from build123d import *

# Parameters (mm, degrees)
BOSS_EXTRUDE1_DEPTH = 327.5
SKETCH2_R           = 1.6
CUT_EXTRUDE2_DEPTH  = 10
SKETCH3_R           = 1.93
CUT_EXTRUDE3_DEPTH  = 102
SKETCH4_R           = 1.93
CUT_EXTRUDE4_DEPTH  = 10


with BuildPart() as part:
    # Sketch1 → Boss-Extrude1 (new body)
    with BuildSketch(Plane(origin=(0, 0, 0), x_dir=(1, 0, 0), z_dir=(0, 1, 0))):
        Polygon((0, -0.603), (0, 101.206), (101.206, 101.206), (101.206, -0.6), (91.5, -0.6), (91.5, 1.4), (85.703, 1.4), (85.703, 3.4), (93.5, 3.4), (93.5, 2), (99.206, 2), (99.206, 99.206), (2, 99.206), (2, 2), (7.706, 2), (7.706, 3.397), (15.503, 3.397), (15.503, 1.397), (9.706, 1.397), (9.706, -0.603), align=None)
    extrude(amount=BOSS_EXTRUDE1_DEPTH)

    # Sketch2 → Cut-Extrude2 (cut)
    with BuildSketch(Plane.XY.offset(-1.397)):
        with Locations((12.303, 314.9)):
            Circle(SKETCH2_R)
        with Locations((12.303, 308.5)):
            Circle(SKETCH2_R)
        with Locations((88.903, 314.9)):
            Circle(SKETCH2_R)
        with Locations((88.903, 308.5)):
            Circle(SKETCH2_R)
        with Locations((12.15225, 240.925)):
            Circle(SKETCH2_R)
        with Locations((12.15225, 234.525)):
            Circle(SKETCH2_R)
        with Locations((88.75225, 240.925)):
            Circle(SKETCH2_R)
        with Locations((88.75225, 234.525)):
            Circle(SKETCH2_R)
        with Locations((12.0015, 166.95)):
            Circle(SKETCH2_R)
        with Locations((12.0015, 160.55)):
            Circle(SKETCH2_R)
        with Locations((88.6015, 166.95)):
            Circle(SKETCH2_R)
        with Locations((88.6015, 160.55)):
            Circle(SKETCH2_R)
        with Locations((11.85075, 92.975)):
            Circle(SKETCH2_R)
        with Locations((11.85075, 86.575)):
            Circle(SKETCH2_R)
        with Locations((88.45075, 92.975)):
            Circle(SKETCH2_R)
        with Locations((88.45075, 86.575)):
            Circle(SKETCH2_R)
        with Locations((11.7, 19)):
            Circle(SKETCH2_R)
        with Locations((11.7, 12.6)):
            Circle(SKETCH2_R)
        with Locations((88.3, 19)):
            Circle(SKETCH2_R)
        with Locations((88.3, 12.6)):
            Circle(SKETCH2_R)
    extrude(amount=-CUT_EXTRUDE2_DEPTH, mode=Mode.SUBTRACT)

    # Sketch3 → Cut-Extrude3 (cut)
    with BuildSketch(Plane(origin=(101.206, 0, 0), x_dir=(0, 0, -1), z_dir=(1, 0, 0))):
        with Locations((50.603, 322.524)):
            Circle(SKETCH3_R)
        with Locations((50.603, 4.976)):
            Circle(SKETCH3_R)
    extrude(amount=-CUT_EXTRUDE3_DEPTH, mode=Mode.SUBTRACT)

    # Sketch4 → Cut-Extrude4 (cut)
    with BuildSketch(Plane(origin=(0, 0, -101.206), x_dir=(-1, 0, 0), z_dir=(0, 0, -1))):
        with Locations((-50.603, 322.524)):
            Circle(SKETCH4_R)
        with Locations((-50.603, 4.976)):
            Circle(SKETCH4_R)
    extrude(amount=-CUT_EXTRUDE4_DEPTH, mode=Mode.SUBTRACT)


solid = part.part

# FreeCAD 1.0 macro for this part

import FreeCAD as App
import Part
import Sketcher

V = App.Vector
Q = App.Units.Quantity


def add_polygon(sketch, points):
    """Adds a closed chain of lines whose ends are joined by coincident constraints."""
    first, n = sketch.GeometryCount, len(points)
    for a, b in zip(points, points[1:] + points[:1]):
        sketch.addGeometry(Part.LineSegment(App.Vector(*a, 0), App.Vector(*b, 0)), False)
    for i in range(n):
        sketch.addConstraint(Sketcher.Constraint("Coincident", first + i, 2, first + (i + 1) % n, 1))

doc = App.newDocument("Part")
params = doc.addObject("Spreadsheet::Sheet", "Params")
for row, (alias, value) in enumerate([
    ("sketch1_height", "2 mm"),
    ("sketch1_height2", "1.4 mm"),
    ("pad1_length", "327.5 mm"),
    ("sketch2_diameter", "3.2 mm"),
    ("pocket1_length", "10 mm"),
    ("sketch3_diameter", "3.86 mm"),
    ("pocket2_length", "102 mm"),
    ("sketch4_diameter", "3.86 mm"),
    ("pocket3_length", "10 mm"),
], start=1):
    params.set(f"A{row}", alias)
    params.set(f"B{row}", "=" + value)
    params.setAlias(f"B{row}", alias)

body = doc.addObject("PartDesign::Body", "Body")

sketch1 = body.newObject("Sketcher::SketchObject", "Sketch")
sketch1.AttachmentSupport = (doc.getObject("XZ_Plane"), [""])
sketch1.MapMode = "FlatFace"
add_polygon(sketch1, [(0, -101.2), (0, 0.6), (9.7, 0.6), (9.7, -1.4), (15.5, -1.4), (15.5, -3.4), (7.7, -3.4), (7.7, -2), (2, -2), (2, -99.2), (99.2, -99.2), (99.2, -2), (93.5, -2), (93.5, -3.4), (85.7, -3.4), (85.7, -1.4), (91.5, -1.4), (91.5, 0.6), (101.2, 0.6), (101.2, -101.2)])
sketch1.addConstraint(Sketcher.Constraint("Vertical", 0))
sketch1.addConstraint(Sketcher.Constraint("Horizontal", 1))
sketch1.addConstraint(Sketcher.Constraint("Vertical", 2))
sketch1.addConstraint(Sketcher.Constraint("Horizontal", 3))
sketch1.addConstraint(Sketcher.Constraint("Vertical", 4))
sketch1.addConstraint(Sketcher.Constraint("Horizontal", 5))
sketch1.addConstraint(Sketcher.Constraint("Vertical", 6))
sketch1.addConstraint(Sketcher.Constraint("Horizontal", 7))
sketch1.addConstraint(Sketcher.Constraint("Vertical", 8))
sketch1.addConstraint(Sketcher.Constraint("Horizontal", 9))
sketch1.addConstraint(Sketcher.Constraint("Vertical", 10))
sketch1.addConstraint(Sketcher.Constraint("Horizontal", 11))
sketch1.addConstraint(Sketcher.Constraint("Vertical", 12))
sketch1.addConstraint(Sketcher.Constraint("Horizontal", 13))
sketch1.addConstraint(Sketcher.Constraint("Vertical", 14))
sketch1.addConstraint(Sketcher.Constraint("Horizontal", 15))
sketch1.addConstraint(Sketcher.Constraint("Vertical", 16))
sketch1.addConstraint(Sketcher.Constraint("Horizontal", 17))
sketch1.addConstraint(Sketcher.Constraint("Vertical", 18))
sketch1.addConstraint(Sketcher.Constraint("Horizontal", 19))
sketch1.addConstraint(Sketcher.Constraint("PointOnObject", 0, 2, -2))
sketch1.addConstraint(Sketcher.Constraint("Horizontal", 7, 2, 10, 2))
sketch1.addConstraint(Sketcher.Constraint("Equal", 7, 11))
sketch1.addConstraint(Sketcher.Constraint("Equal", 5, 13))
sketch1.addConstraint(Sketcher.Constraint("Equal", 3, 15))
sketch1.addConstraint(Sketcher.Constraint("Equal", 1, 17))
sketch1.addConstraint(Sketcher.Constraint("Equal", 2, 4))
sketch1.addConstraint(Sketcher.Constraint("Equal", 9, 8))
sketch1.addConstraint(Sketcher.Constraint("Equal", 4, 14))
sketch1.addConstraint(Sketcher.Constraint("Equal", 14, 16))
sketch1.addConstraint(Sketcher.Constraint("DistanceY", 2, 2, 2, 1, Q("2 mm")))
sketch1.addConstraint(Sketcher.Constraint("DistanceY", 12, 2, 12, 1, Q("1.4 mm")))
sketch1.addConstraint(Sketcher.Constraint("DistanceY", 6, 2, -1, 1, Q("2 mm")))
sketch1.addConstraint(Sketcher.Constraint("DistanceX", -1, 1, 7, 2, Q("2 mm")))
sketch1.addConstraint(Sketcher.Constraint("DistanceX", 5, 2, 2, 2, Q("2 mm")))
sketch1.addConstraint(Sketcher.Constraint("DistanceY", 18, 2, 9, 2, Q("2 mm")))
sketch1.addConstraint(Sketcher.Constraint("DistanceX", -1, 1, 11, 2, Q("93.5 mm")))
sketch1.addConstraint(Sketcher.Constraint("DistanceX", 4, 2, 13, 2, Q("70.2 mm")))
sketch1.addConstraint(Sketcher.Constraint("DistanceX", 1, 1, 1, 2, Q("9.706 mm")))
sketch1.addConstraint(Sketcher.Constraint("DistanceY", 0, 1, 0, 2, Q("101.809 mm")))
sketch1.setExpression("Constraints[50]", "Params.sketch1_height")
sketch1.setExpression("Constraints[51]", "Params.sketch1_height2")
pad1 = body.newObject("PartDesign::Pad", "Pad")
pad1.Profile = sketch1
pad1.setExpression("Length", "Params.pad1_length")
pad1.Reversed = True

sketch2 = body.newObject("Sketcher::SketchObject", "Sketch001")
sketch2.AttachmentSupport = (doc.getObject("XY_Plane"), [""])
sketch2.MapMode = "FlatFace"
sketch2.AttachmentOffset = App.Placement(V(0, 0, -1.397), App.Rotation())
sketch2.addGeometry(Part.Circle(V(12.3, 314.9, 0), V(0, 0, 1), 1.6), False)
sketch2.addGeometry(Part.Circle(V(12.3, 308.5, 0), V(0, 0, 1), 1.6), False)
sketch2.addGeometry(Part.Circle(V(88.9, 314.9, 0), V(0, 0, 1), 1.6), False)
sketch2.addGeometry(Part.Circle(V(88.9, 308.5, 0), V(0, 0, 1), 1.6), False)
sketch2.addGeometry(Part.Circle(V(12.2, 240.9, 0), V(0, 0, 1), 1.6), False)
sketch2.addGeometry(Part.Circle(V(12.2, 234.5, 0), V(0, 0, 1), 1.6), False)
sketch2.addGeometry(Part.Circle(V(88.8, 240.9, 0), V(0, 0, 1), 1.6), False)
sketch2.addGeometry(Part.Circle(V(88.8, 234.5, 0), V(0, 0, 1), 1.6), False)
sketch2.addGeometry(Part.Circle(V(12, 166.9, 0), V(0, 0, 1), 1.6), False)
sketch2.addGeometry(Part.Circle(V(12, 160.6, 0), V(0, 0, 1), 1.6), False)
sketch2.addGeometry(Part.Circle(V(88.6, 166.9, 0), V(0, 0, 1), 1.6), False)
sketch2.addGeometry(Part.Circle(V(88.6, 160.6, 0), V(0, 0, 1), 1.6), False)
sketch2.addGeometry(Part.Circle(V(11.9, 93, 0), V(0, 0, 1), 1.6), False)
sketch2.addGeometry(Part.Circle(V(11.9, 86.6, 0), V(0, 0, 1), 1.6), False)
sketch2.addGeometry(Part.Circle(V(88.5, 93, 0), V(0, 0, 1), 1.6), False)
sketch2.addGeometry(Part.Circle(V(88.5, 86.6, 0), V(0, 0, 1), 1.6), False)
sketch2.addGeometry(Part.Circle(V(11.7, 19, 0), V(0, 0, 1), 1.6), False)
sketch2.addGeometry(Part.Circle(V(11.7, 12.6, 0), V(0, 0, 1), 1.6), False)
sketch2.addGeometry(Part.Circle(V(88.3, 19, 0), V(0, 0, 1), 1.6), False)
sketch2.addGeometry(Part.Circle(V(88.3, 12.6, 0), V(0, 0, 1), 1.6), False)
sketch2.addConstraint(Sketcher.Constraint("Equal", 0, 1))
sketch2.addConstraint(Sketcher.Constraint("Equal", 1, 2))
sketch2.addConstraint(Sketcher.Constraint("Equal", 2, 3))
sketch2.addConstraint(Sketcher.Constraint("Equal", 3, 4))
sketch2.addConstraint(Sketcher.Constraint("Equal", 4, 5))
sketch2.addConstraint(Sketcher.Constraint("Equal", 5, 6))
sketch2.addConstraint(Sketcher.Constraint("Equal", 6, 7))
sketch2.addConstraint(Sketcher.Constraint("Equal", 7, 8))
sketch2.addConstraint(Sketcher.Constraint("Equal", 8, 9))
sketch2.addConstraint(Sketcher.Constraint("Equal", 9, 10))
sketch2.addConstraint(Sketcher.Constraint("Equal", 10, 11))
sketch2.addConstraint(Sketcher.Constraint("Equal", 11, 12))
sketch2.addConstraint(Sketcher.Constraint("Equal", 12, 13))
sketch2.addConstraint(Sketcher.Constraint("Equal", 13, 14))
sketch2.addConstraint(Sketcher.Constraint("Equal", 14, 15))
sketch2.addConstraint(Sketcher.Constraint("Equal", 15, 16))
sketch2.addConstraint(Sketcher.Constraint("Equal", 16, 17))
sketch2.addConstraint(Sketcher.Constraint("Equal", 17, 18))
sketch2.addConstraint(Sketcher.Constraint("Equal", 18, 19))
sketch2.addConstraint(Sketcher.Constraint("Horizontal", 0, 3, 2, 3))
sketch2.addConstraint(Sketcher.Constraint("Horizontal", 1, 3, 3, 3))
sketch2.addConstraint(Sketcher.Constraint("Horizontal", 4, 3, 6, 3))
sketch2.addConstraint(Sketcher.Constraint("Horizontal", 5, 3, 7, 3))
sketch2.addConstraint(Sketcher.Constraint("Horizontal", 8, 3, 10, 3))
sketch2.addConstraint(Sketcher.Constraint("Horizontal", 9, 3, 11, 3))
sketch2.addConstraint(Sketcher.Constraint("Horizontal", 12, 3, 14, 3))
sketch2.addConstraint(Sketcher.Constraint("Horizontal", 13, 3, 15, 3))
sketch2.addConstraint(Sketcher.Constraint("Horizontal", 16, 3, 18, 3))
sketch2.addConstraint(Sketcher.Constraint("Horizontal", 17, 3, 19, 3))
sketch2.addConstraint(Sketcher.Constraint("Vertical", 0, 3, 1, 3))
sketch2.addConstraint(Sketcher.Constraint("Vertical", 2, 3, 3, 3))
sketch2.addConstraint(Sketcher.Constraint("Vertical", 4, 3, 5, 3))
sketch2.addConstraint(Sketcher.Constraint("Vertical", 6, 3, 7, 3))
sketch2.addConstraint(Sketcher.Constraint("Vertical", 8, 3, 9, 3))
sketch2.addConstraint(Sketcher.Constraint("Vertical", 10, 3, 11, 3))
sketch2.addConstraint(Sketcher.Constraint("Vertical", 12, 3, 13, 3))
sketch2.addConstraint(Sketcher.Constraint("Vertical", 14, 3, 15, 3))
sketch2.addConstraint(Sketcher.Constraint("Vertical", 16, 3, 17, 3))
sketch2.addConstraint(Sketcher.Constraint("Vertical", 18, 3, 19, 3))
sketch2.addConstraint(Sketcher.Constraint("Diameter", 0, Q("3.2 mm")))
sketch2.addConstraint(Sketcher.Constraint("DistanceY", -1, 1, 16, 3, Q("19 mm")))
sketch2.addConstraint(Sketcher.Constraint("DistanceY", -1, 1, 0, 3, Q("314.9 mm")))
sketch2.addConstraint(Sketcher.Constraint("DistanceY", -1, 1, 1, 3, Q("308.5 mm")))
sketch2.addConstraint(Sketcher.Constraint("DistanceX", -1, 1, 16, 3, Q("11.7 mm")))
sketch2.addConstraint(Sketcher.Constraint("DistanceY", -1, 1, 17, 3, Q("12.6 mm")))
sketch2.addConstraint(Sketcher.Constraint("DistanceX", -1, 1, 18, 3, Q("88.3 mm")))
sketch2.addConstraint(Sketcher.Constraint("DistanceX", 0, 3, 2, 3, Q("76.6 mm")))
sketch2.addConstraint(Sketcher.Constraint("DistanceY", 5, 3, 4, 3, Q("6.4 mm")))
sketch2.addConstraint(Sketcher.Constraint("DistanceX", 4, 3, 6, 3, Q("76.6 mm")))
sketch2.addConstraint(Sketcher.Constraint("DistanceY", 9, 3, 8, 3, Q("6.4 mm")))
sketch2.addConstraint(Sketcher.Constraint("DistanceX", 8, 3, 10, 3, Q("76.6 mm")))
sketch2.addConstraint(Sketcher.Constraint("DistanceY", 13, 3, 12, 3, Q("6.4 mm")))
sketch2.addConstraint(Sketcher.Constraint("DistanceX", 12, 3, 14, 3, Q("76.6 mm")))
sketch2.addConstraint(Sketcher.Constraint("DistanceY", -1, 1, 8, 3, Q("166.95 mm")))
sketch2.addConstraint(Sketcher.Constraint("DistanceY", 12, 3, 5, 3, Q("141.55 mm")))
sketch2.addConstraint(Sketcher.Constraint("DistanceX", -1, 1, 0, 3, Q("12.303 mm")))
sketch2.addConstraint(Sketcher.Constraint("DistanceY", -1, 1, 4, 3, Q("240.925 mm")))
sketch2.addConstraint(Sketcher.Constraint("DistanceX", -1, 1, 8, 3, Q("12.0015 mm")))
sketch2.addConstraint(Sketcher.Constraint("DistanceX", 12, 3, 5, 3, Q("0.3015 mm")))
sketch2.addConstraint(Sketcher.Constraint("DistanceX", -1, 1, 4, 3, Q("12.15225 mm")))
sketch2.setExpression("Constraints[39]", "Params.sketch2_diameter")
pocket1 = body.newObject("PartDesign::Pocket", "Pocket")
pocket1.Profile = sketch2
pocket1.setExpression("Length", "Params.pocket1_length")

sketch3 = body.newObject("Sketcher::SketchObject", "Sketch002")
sketch3.AttachmentSupport = (doc.getObject("YZ_Plane"), [""])
sketch3.MapMode = "FlatFace"
sketch3.AttachmentOffset = App.Placement(V(0, 0, 101.206), App.Rotation())
sketch3.addGeometry(Part.Circle(V(322.5, -50.6, 0), V(0, 0, 1), 1.9), False)
sketch3.addGeometry(Part.Circle(V(5, -50.6, 0), V(0, 0, 1), 1.9), False)
sketch3.addConstraint(Sketcher.Constraint("Equal", 0, 1))
sketch3.addConstraint(Sketcher.Constraint("Horizontal", 0, 3, 1, 3))
sketch3.addConstraint(Sketcher.Constraint("Diameter", 0, Q("3.86 mm")))
sketch3.addConstraint(Sketcher.Constraint("DistanceX", -1, 1, 0, 3, Q("322.524 mm")))
sketch3.addConstraint(Sketcher.Constraint("DistanceY", 0, 3, -1, 1, Q("50.603 mm")))
sketch3.addConstraint(Sketcher.Constraint("DistanceX", -1, 1, 1, 3, Q("4.976 mm")))
sketch3.setExpression("Constraints[2]", "Params.sketch3_diameter")
pocket2 = body.newObject("PartDesign::Pocket", "Pocket001")
pocket2.Profile = sketch3
pocket2.setExpression("Length", "Params.pocket2_length")

sketch4 = body.newObject("Sketcher::SketchObject", "Sketch003")
sketch4.AttachmentSupport = (doc.getObject("XY_Plane"), [""])
sketch4.MapMode = "FlatFace"
sketch4.AttachmentOffset = App.Placement(V(0, 0, -101.206), App.Rotation())
sketch4.addGeometry(Part.Circle(V(50.6, 322.5, 0), V(0, 0, 1), 1.9), False)
sketch4.addGeometry(Part.Circle(V(50.6, 5, 0), V(0, 0, 1), 1.9), False)
sketch4.addConstraint(Sketcher.Constraint("Equal", 0, 1))
sketch4.addConstraint(Sketcher.Constraint("Vertical", 0, 3, 1, 3))
sketch4.addConstraint(Sketcher.Constraint("Diameter", 0, Q("3.86 mm")))
sketch4.addConstraint(Sketcher.Constraint("DistanceX", -1, 1, 0, 3, Q("50.603 mm")))
sketch4.addConstraint(Sketcher.Constraint("DistanceY", -1, 1, 0, 3, Q("322.524 mm")))
sketch4.addConstraint(Sketcher.Constraint("DistanceY", -1, 1, 1, 3, Q("4.976 mm")))
sketch4.setExpression("Constraints[2]", "Params.sketch4_diameter")
pocket3 = body.newObject("PartDesign::Pocket", "Pocket002")
pocket3.Profile = sketch4
pocket3.setExpression("Length", "Params.pocket3_length")
pocket3.Reversed = True

doc.recompute()
